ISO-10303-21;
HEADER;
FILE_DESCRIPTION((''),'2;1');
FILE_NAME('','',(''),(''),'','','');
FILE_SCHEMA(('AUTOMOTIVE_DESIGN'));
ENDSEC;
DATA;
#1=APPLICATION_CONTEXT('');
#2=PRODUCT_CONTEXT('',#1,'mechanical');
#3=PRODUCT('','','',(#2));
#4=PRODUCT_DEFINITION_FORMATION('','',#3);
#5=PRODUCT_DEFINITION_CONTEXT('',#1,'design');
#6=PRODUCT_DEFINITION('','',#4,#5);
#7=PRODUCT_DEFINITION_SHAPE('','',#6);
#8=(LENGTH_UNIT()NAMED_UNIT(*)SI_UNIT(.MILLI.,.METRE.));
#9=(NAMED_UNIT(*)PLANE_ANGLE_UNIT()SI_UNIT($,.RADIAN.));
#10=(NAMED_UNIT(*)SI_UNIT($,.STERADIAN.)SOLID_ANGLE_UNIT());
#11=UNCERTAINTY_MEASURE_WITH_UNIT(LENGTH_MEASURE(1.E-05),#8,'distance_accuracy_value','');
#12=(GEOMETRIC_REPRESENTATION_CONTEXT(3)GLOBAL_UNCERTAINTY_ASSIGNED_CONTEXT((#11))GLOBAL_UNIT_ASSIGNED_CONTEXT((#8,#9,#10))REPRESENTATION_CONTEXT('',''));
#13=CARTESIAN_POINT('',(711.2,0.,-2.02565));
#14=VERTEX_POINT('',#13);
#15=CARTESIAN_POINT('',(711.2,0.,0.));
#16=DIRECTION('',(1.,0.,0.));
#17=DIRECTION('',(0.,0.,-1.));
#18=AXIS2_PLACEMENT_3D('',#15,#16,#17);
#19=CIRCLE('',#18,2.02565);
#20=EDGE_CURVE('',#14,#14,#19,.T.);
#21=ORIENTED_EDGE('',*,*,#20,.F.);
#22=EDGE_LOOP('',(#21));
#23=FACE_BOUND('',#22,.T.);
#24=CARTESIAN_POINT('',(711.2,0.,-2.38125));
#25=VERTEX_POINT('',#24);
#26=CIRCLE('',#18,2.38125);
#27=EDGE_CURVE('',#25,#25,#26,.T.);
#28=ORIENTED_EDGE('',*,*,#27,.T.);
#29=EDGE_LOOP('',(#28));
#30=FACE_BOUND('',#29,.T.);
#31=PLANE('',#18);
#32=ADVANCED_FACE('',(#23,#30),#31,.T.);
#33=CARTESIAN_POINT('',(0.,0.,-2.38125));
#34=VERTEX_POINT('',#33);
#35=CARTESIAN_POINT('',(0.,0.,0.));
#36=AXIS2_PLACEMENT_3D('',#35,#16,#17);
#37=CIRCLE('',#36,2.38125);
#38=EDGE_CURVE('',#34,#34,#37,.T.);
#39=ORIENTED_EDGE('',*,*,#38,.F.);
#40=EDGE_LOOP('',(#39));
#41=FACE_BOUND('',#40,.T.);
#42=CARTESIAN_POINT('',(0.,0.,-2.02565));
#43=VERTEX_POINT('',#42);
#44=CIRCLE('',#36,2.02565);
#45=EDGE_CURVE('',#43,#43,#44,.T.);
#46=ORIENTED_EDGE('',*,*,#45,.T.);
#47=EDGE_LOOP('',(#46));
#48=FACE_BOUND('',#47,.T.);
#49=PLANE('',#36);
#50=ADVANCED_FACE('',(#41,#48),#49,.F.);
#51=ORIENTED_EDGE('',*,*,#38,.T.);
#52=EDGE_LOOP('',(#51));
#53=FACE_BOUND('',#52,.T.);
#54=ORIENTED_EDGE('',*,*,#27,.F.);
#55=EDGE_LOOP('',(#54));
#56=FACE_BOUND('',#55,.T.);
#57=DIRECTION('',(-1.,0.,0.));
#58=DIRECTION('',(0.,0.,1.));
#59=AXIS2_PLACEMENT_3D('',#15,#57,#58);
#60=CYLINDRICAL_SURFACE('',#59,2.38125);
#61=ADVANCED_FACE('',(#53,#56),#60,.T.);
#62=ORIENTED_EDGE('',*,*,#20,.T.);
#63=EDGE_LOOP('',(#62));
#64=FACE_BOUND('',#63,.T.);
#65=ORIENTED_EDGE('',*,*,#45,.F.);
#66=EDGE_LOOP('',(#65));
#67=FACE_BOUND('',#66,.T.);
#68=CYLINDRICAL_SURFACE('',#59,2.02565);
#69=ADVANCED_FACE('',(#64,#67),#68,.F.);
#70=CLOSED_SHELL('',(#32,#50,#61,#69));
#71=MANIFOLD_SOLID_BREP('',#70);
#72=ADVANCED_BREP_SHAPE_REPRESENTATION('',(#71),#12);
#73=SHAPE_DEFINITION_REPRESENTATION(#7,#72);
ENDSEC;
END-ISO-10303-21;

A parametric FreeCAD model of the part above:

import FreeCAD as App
import Part
import Sketcher
from FreeCAD import Vector
Q = App.Units.Quantity

doc = App.newDocument("Part")
params = doc.addObject("Spreadsheet::Sheet", "Params")
for row, (alias, value) in enumerate([
    ("sketch1_diameter", "0.1875 in"),
    ("sketch2_width", "28 in"),
], start=1):
    params.set(f"A{row}", alias)
    params.set(f"B{row}", "=" + value)
    params.setAlias(f"B{row}", alias)

body = doc.addObject("PartDesign::Body", "Body")

# Sketch on YZ plane
sketch1 = body.newObject("Sketcher::SketchObject", "Sketch")
sketch1.AttachmentSupport = (doc.getObject("YZ_Plane"), [""])
sketch1.MapMode = "FlatFace"
sketch1.addGeometry([
    Part.Circle(Vector(0, 0, 0), Vector(0, 0, 1), 2.4),
    Part.Circle(Vector(0, 0, 0), Vector(0, 0, 1), 2),
], False)
sketch1.addConstraint([
    Sketcher.Constraint("Coincident", 0, 3, -1, 1),
    Sketcher.Constraint("Coincident", 1, 3, -1, 1),
    Sketcher.Constraint("Diameter", 0, Q("0.1875 in")),
    Sketcher.Constraint("Diameter", 1, Q("0.1595 in")),
])
sketch1.setExpression("Constraints[2]", "Params.sketch1_diameter")

# Sketch on XY plane
sketch2 = body.newObject("Sketcher::SketchObject", "Sketch001")
sketch2.AttachmentSupport = (doc.getObject("XY_Plane"), [""])
sketch2.MapMode = "FlatFace"
sketch2.addGeometry(Part.LineSegment(Vector(0, 0, 0), Vector(711, 0, 0)), False)
sketch2.addConstraint([
    Sketcher.Constraint("Horizontal", 0),
    Sketcher.Constraint("Coincident", 0, 1, -1, 1),
    Sketcher.Constraint("DistanceX", 0, 1, 0, 2, Q("28 in")),
])
sketch2.setExpression("Constraints[2]", "Params.sketch2_width")
doc.recompute()

additivepipe = body.newObject("PartDesign::AdditivePipe", "AdditivePipe")
additivepipe.Profile = sketch1
additivepipe.Spine = (sketch2, ["Edge1"])

doc.recompute()
